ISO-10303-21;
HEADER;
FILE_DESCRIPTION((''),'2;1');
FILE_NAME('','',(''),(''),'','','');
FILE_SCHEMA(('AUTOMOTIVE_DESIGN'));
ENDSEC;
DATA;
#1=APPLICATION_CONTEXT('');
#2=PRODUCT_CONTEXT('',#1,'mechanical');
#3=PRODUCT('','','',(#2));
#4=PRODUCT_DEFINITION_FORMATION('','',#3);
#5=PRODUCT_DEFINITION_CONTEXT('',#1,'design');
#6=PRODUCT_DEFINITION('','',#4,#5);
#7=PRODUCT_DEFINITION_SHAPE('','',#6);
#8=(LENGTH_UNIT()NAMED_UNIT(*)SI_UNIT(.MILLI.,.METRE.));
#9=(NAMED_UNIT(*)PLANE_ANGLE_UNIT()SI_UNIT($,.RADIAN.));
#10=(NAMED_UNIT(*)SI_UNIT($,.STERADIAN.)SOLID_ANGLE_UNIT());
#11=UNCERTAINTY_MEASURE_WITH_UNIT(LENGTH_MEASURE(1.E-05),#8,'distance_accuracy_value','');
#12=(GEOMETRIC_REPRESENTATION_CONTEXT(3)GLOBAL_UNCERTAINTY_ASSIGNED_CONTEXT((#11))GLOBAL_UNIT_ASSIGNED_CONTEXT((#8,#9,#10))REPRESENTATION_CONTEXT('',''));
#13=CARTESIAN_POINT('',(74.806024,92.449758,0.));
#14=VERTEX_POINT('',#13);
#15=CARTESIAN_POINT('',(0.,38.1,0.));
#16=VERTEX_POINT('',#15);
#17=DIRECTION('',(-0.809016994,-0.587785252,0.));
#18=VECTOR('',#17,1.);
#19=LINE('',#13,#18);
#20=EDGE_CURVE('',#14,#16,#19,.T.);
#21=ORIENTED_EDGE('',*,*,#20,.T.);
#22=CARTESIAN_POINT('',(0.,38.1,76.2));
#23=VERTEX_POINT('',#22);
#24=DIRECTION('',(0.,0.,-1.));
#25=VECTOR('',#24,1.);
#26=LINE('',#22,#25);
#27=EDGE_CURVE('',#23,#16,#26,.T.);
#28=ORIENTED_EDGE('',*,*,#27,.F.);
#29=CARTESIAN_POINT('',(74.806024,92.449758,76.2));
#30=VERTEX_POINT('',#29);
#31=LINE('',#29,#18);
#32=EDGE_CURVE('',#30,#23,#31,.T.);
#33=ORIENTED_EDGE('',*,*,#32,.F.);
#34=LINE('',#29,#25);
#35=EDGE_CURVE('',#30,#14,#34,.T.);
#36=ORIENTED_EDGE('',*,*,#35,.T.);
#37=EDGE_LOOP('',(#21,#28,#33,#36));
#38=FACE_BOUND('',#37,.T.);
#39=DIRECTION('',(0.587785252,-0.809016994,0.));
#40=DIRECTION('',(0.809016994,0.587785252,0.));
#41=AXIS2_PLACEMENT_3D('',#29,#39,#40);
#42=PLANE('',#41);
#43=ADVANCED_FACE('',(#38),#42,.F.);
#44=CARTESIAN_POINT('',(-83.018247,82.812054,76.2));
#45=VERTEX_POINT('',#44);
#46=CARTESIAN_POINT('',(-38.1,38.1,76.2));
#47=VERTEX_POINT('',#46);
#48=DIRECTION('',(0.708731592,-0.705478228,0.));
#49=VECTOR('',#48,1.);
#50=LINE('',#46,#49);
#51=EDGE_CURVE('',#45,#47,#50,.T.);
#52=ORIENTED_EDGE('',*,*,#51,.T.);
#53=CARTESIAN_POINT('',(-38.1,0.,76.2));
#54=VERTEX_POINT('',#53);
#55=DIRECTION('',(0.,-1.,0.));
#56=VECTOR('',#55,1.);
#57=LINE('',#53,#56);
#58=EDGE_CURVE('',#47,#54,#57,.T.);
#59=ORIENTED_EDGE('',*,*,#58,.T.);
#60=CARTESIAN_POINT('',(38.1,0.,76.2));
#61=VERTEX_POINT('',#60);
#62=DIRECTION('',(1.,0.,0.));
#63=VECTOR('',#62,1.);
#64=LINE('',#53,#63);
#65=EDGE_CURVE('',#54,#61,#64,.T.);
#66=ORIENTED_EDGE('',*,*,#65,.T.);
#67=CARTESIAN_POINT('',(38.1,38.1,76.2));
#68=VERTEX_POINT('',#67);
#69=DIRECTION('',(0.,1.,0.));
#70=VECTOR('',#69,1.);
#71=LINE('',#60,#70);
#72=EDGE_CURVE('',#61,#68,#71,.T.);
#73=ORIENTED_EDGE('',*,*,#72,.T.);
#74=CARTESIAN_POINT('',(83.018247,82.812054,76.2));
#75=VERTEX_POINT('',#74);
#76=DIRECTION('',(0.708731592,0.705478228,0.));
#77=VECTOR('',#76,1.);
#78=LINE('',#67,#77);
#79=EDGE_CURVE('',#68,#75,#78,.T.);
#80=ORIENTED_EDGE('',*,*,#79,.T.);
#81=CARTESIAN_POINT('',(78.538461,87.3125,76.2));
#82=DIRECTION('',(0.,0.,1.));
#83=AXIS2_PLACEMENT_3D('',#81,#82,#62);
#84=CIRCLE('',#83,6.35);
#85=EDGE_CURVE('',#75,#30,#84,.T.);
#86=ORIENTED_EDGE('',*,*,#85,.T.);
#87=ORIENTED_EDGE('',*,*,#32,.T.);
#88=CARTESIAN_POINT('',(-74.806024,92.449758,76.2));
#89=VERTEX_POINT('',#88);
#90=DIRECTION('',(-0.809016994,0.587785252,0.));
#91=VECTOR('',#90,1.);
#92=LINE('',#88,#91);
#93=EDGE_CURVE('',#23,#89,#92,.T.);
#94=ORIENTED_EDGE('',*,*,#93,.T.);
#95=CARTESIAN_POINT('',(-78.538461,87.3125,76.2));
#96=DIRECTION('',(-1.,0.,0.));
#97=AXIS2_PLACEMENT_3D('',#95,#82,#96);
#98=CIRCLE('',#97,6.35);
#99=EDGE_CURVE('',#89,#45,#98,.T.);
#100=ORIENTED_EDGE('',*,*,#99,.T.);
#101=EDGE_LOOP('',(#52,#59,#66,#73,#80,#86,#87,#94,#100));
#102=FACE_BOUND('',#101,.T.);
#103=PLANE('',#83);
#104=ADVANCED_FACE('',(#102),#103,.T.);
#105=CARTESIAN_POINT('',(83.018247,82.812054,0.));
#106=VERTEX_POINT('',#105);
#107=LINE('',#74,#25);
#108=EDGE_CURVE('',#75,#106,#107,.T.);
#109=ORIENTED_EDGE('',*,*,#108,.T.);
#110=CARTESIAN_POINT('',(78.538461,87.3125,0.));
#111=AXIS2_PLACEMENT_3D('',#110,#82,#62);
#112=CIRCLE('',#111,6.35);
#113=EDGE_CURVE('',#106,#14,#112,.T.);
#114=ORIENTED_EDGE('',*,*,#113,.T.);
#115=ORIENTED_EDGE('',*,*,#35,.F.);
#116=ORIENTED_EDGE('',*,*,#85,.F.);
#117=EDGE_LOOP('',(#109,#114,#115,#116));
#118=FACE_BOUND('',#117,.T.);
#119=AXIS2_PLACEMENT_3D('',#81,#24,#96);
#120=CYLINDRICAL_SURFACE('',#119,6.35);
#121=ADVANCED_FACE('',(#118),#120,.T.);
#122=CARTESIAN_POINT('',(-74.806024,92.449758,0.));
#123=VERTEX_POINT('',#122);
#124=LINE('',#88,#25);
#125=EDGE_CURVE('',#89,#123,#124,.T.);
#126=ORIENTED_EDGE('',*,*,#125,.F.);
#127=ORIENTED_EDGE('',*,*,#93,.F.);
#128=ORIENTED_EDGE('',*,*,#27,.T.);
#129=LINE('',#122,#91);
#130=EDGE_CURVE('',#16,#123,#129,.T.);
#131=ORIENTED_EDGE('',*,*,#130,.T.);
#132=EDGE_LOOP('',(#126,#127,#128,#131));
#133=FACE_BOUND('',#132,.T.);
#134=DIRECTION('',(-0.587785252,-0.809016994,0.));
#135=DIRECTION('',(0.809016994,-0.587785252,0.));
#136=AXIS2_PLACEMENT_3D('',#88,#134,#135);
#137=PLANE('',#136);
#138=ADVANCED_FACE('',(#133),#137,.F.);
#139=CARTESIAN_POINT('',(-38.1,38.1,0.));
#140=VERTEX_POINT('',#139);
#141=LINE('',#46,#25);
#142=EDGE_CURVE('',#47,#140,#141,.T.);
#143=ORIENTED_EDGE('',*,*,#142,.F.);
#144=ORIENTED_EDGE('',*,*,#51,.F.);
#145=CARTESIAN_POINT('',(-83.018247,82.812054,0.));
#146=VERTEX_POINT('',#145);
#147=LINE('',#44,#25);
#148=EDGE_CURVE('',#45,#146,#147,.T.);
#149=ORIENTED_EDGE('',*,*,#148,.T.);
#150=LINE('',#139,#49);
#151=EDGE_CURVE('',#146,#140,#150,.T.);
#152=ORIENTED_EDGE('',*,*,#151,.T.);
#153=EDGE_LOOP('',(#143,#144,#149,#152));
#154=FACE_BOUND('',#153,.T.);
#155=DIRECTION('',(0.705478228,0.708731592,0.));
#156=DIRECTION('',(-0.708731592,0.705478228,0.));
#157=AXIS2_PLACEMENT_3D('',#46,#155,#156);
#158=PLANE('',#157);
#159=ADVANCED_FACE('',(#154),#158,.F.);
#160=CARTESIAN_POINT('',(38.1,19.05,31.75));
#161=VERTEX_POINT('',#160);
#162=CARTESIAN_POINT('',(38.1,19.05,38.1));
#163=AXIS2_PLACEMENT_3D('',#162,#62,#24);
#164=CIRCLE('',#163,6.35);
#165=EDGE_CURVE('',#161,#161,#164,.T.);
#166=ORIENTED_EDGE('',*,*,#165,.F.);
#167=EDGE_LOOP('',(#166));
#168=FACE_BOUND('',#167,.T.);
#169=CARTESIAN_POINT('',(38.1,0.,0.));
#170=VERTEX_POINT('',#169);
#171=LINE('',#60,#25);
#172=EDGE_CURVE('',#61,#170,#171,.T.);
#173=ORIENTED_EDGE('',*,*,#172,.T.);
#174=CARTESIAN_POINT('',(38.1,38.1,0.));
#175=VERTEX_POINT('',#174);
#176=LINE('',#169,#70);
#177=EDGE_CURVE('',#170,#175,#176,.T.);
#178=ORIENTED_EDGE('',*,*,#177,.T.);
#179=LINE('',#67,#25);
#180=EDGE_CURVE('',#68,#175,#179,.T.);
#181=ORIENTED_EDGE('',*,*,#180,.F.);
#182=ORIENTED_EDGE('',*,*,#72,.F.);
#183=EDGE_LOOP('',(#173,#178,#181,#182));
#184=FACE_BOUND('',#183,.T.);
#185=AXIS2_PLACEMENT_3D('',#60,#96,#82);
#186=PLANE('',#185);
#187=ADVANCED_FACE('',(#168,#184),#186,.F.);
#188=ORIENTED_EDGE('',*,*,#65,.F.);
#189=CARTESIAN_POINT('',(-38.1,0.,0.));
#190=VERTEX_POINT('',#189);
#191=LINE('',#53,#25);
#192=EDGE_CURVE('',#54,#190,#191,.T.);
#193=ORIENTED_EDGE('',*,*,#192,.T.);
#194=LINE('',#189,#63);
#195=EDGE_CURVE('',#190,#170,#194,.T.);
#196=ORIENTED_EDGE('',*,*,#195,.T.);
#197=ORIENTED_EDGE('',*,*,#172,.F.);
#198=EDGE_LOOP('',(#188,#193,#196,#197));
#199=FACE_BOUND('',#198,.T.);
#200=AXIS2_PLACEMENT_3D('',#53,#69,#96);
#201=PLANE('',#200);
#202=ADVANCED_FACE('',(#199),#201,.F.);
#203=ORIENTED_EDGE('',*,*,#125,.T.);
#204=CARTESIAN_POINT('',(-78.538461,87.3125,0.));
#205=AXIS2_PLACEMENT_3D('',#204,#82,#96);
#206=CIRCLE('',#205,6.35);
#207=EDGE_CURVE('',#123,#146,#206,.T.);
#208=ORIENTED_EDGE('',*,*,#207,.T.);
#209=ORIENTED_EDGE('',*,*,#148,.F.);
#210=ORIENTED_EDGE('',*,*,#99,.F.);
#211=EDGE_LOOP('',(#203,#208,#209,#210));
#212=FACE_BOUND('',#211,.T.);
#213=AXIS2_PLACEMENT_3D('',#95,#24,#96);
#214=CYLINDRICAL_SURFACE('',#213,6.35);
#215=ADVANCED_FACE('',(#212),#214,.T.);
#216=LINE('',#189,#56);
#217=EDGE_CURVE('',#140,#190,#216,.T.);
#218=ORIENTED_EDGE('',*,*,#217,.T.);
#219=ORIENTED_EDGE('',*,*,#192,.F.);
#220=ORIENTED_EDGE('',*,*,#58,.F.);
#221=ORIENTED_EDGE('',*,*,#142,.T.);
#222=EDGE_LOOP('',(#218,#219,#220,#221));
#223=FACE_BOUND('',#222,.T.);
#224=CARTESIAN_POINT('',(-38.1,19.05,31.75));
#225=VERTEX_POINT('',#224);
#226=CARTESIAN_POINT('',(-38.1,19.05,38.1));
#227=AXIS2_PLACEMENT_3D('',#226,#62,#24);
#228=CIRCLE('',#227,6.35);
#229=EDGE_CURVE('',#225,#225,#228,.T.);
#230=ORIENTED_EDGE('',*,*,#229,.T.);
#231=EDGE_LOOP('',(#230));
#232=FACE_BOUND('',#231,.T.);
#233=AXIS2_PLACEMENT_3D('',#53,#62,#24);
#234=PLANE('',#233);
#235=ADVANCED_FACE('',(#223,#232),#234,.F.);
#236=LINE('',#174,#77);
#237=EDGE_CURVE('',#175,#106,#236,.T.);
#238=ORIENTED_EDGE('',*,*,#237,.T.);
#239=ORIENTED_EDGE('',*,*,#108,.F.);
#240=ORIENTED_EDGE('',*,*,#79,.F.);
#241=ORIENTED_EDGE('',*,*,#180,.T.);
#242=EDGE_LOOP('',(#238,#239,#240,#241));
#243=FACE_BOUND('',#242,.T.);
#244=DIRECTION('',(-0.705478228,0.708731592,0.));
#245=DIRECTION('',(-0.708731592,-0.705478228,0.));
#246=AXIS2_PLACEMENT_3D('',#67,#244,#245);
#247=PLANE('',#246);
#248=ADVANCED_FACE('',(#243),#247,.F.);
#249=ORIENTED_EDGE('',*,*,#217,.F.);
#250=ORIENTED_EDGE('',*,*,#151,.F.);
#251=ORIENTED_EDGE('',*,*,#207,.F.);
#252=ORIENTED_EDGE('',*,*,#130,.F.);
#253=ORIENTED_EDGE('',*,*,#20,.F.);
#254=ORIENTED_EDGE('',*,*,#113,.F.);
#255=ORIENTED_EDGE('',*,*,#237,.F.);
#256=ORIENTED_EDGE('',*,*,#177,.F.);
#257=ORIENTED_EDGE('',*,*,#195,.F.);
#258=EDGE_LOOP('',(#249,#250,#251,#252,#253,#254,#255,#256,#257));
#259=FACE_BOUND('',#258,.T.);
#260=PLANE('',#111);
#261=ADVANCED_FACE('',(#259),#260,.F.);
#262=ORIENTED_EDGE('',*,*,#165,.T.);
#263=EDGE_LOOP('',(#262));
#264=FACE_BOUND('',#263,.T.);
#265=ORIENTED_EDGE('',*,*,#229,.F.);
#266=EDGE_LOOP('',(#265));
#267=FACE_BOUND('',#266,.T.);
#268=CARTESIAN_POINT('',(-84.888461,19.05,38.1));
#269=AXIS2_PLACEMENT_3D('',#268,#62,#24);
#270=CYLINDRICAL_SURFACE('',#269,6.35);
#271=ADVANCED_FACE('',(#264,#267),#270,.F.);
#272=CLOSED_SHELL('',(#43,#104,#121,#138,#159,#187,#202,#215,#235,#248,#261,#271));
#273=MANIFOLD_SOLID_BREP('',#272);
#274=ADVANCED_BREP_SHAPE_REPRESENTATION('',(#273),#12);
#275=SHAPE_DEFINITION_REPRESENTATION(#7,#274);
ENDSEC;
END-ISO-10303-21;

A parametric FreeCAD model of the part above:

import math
import FreeCAD as App
import Part
import Sketcher

V = App.Vector
Q = App.Units.Quantity

doc = App.newDocument("Part")
body = doc.addObject("PartDesign::Body", "Body")

# Sketch on XY plane
sketch1 = body.newObject("Sketcher::SketchObject", "Sketch")
sketch1.AttachmentSupport = (doc.getObject("XY_Plane"), [""])
sketch1.MapMode = "FlatFace"
sketch1.addGeometry([
    Part.LineSegment(V(-38, 0, 0), V(38, 0, 0)),  # 0
    Part.LineSegment(V(38, 0, 0), V(38, 38, 0)),  # 1
    Part.LineSegment(V(38, 38, 0), V(83, 83, 0)),  # 2
    Part.ArcOfCircle(Part.Circle(V(79, 87, 0), V(0, 0, 1), 6), math.radians(-45), math.radians(126)),  # 3
    Part.LineSegment(V(75, 92, 0), V(0, 38, 0)),  # 4
    Part.LineSegment(V(0, 38, 0), V(-75, 92, 0)),  # 5
    Part.ArcOfCircle(Part.Circle(V(-79, 87, 0), V(0, 0, 1), 6), math.radians(54), math.radians(225)),  # 6
    Part.LineSegment(V(-83, 83, 0), V(-38, 38, 0)),  # 7
    Part.LineSegment(V(-38, 38, 0), V(-38, 0, 0)),  # 8
], False)
sketch1.addConstraint([
    Sketcher.Constraint("Coincident", 0, 2, 1, 1),
    Sketcher.Constraint("Coincident", 1, 2, 2, 1),
    Sketcher.Constraint("Tangent", 2, 2, 3, 1),
    Sketcher.Constraint("Tangent", 3, 2, 4, 1),
    Sketcher.Constraint("Coincident", 4, 2, 5, 1),
    Sketcher.Constraint("Tangent", 5, 2, 6, 1),
    Sketcher.Constraint("Tangent", 6, 2, 7, 1),
    Sketcher.Constraint("Coincident", 7, 2, 8, 1),
    Sketcher.Constraint("Coincident", 8, 2, 0, 1),
    Sketcher.Constraint("Horizontal", 0),
    Sketcher.Constraint("Vertical", 1),
    Sketcher.Constraint("Vertical", 8),
    Sketcher.Constraint("Equal", 3, 6),
    Sketcher.Constraint("Symmetric", 0, 2, 8, 2, -1, 1),
    Sketcher.Constraint("Symmetric", 3, 3, 6, 3, -2),
    Sketcher.Constraint("PointOnObject", 4, 2, -2),
    Sketcher.Constraint("Horizontal", 1, 2, 4, 2),
    Sketcher.Constraint("Horizontal", 2, 2, 6, 2),
    Sketcher.Constraint("DistanceX", 0, 1, 0, 2, Q("3 in")),
    Sketcher.Constraint("Radius", 3, Q("0.25 in")),
    Sketcher.Constraint("DistanceY", 1, 1, 1, 2, Q("1.5 in")),
    Sketcher.Constraint("Angle", 4, Q("-144 deg")),
    Sketcher.Constraint("DistanceY", -1, 1, 3, 3, Q("3.4375 in")),
])
pad1 = body.newObject("PartDesign::Pad", "Pad")
pad1.Profile = sketch1
pad1.Length = Q("3 in")

# Sketch on YZ plane
sketch2 = body.newObject("Sketcher::SketchObject", "Sketch001")
sketch2.AttachmentSupport = (doc.getObject("YZ_Plane"), [""])
sketch2.MapMode = "FlatFace"
sketch2.AttachmentOffset = App.Placement(V(0, 0, 1.5 * 25.4), App.Rotation())
sketch2.addGeometry(Part.Circle(V(19, 38, 0), V(0, 0, 1), 6), False)
sketch2.addConstraint([
    Sketcher.Constraint("Diameter", 0, Q("0.5 in")),
    Sketcher.Constraint("DistanceY", -1, 1, 0, 3, Q("1.5 in")),
    Sketcher.Constraint("DistanceX", -1, 1, 0, 3, Q("0.75 in")),
])
pocket1 = body.newObject("PartDesign::Pocket", "Pocket")
pocket1.Profile = sketch2
pocket1.Type = "ThroughAll"

doc.recompute()
